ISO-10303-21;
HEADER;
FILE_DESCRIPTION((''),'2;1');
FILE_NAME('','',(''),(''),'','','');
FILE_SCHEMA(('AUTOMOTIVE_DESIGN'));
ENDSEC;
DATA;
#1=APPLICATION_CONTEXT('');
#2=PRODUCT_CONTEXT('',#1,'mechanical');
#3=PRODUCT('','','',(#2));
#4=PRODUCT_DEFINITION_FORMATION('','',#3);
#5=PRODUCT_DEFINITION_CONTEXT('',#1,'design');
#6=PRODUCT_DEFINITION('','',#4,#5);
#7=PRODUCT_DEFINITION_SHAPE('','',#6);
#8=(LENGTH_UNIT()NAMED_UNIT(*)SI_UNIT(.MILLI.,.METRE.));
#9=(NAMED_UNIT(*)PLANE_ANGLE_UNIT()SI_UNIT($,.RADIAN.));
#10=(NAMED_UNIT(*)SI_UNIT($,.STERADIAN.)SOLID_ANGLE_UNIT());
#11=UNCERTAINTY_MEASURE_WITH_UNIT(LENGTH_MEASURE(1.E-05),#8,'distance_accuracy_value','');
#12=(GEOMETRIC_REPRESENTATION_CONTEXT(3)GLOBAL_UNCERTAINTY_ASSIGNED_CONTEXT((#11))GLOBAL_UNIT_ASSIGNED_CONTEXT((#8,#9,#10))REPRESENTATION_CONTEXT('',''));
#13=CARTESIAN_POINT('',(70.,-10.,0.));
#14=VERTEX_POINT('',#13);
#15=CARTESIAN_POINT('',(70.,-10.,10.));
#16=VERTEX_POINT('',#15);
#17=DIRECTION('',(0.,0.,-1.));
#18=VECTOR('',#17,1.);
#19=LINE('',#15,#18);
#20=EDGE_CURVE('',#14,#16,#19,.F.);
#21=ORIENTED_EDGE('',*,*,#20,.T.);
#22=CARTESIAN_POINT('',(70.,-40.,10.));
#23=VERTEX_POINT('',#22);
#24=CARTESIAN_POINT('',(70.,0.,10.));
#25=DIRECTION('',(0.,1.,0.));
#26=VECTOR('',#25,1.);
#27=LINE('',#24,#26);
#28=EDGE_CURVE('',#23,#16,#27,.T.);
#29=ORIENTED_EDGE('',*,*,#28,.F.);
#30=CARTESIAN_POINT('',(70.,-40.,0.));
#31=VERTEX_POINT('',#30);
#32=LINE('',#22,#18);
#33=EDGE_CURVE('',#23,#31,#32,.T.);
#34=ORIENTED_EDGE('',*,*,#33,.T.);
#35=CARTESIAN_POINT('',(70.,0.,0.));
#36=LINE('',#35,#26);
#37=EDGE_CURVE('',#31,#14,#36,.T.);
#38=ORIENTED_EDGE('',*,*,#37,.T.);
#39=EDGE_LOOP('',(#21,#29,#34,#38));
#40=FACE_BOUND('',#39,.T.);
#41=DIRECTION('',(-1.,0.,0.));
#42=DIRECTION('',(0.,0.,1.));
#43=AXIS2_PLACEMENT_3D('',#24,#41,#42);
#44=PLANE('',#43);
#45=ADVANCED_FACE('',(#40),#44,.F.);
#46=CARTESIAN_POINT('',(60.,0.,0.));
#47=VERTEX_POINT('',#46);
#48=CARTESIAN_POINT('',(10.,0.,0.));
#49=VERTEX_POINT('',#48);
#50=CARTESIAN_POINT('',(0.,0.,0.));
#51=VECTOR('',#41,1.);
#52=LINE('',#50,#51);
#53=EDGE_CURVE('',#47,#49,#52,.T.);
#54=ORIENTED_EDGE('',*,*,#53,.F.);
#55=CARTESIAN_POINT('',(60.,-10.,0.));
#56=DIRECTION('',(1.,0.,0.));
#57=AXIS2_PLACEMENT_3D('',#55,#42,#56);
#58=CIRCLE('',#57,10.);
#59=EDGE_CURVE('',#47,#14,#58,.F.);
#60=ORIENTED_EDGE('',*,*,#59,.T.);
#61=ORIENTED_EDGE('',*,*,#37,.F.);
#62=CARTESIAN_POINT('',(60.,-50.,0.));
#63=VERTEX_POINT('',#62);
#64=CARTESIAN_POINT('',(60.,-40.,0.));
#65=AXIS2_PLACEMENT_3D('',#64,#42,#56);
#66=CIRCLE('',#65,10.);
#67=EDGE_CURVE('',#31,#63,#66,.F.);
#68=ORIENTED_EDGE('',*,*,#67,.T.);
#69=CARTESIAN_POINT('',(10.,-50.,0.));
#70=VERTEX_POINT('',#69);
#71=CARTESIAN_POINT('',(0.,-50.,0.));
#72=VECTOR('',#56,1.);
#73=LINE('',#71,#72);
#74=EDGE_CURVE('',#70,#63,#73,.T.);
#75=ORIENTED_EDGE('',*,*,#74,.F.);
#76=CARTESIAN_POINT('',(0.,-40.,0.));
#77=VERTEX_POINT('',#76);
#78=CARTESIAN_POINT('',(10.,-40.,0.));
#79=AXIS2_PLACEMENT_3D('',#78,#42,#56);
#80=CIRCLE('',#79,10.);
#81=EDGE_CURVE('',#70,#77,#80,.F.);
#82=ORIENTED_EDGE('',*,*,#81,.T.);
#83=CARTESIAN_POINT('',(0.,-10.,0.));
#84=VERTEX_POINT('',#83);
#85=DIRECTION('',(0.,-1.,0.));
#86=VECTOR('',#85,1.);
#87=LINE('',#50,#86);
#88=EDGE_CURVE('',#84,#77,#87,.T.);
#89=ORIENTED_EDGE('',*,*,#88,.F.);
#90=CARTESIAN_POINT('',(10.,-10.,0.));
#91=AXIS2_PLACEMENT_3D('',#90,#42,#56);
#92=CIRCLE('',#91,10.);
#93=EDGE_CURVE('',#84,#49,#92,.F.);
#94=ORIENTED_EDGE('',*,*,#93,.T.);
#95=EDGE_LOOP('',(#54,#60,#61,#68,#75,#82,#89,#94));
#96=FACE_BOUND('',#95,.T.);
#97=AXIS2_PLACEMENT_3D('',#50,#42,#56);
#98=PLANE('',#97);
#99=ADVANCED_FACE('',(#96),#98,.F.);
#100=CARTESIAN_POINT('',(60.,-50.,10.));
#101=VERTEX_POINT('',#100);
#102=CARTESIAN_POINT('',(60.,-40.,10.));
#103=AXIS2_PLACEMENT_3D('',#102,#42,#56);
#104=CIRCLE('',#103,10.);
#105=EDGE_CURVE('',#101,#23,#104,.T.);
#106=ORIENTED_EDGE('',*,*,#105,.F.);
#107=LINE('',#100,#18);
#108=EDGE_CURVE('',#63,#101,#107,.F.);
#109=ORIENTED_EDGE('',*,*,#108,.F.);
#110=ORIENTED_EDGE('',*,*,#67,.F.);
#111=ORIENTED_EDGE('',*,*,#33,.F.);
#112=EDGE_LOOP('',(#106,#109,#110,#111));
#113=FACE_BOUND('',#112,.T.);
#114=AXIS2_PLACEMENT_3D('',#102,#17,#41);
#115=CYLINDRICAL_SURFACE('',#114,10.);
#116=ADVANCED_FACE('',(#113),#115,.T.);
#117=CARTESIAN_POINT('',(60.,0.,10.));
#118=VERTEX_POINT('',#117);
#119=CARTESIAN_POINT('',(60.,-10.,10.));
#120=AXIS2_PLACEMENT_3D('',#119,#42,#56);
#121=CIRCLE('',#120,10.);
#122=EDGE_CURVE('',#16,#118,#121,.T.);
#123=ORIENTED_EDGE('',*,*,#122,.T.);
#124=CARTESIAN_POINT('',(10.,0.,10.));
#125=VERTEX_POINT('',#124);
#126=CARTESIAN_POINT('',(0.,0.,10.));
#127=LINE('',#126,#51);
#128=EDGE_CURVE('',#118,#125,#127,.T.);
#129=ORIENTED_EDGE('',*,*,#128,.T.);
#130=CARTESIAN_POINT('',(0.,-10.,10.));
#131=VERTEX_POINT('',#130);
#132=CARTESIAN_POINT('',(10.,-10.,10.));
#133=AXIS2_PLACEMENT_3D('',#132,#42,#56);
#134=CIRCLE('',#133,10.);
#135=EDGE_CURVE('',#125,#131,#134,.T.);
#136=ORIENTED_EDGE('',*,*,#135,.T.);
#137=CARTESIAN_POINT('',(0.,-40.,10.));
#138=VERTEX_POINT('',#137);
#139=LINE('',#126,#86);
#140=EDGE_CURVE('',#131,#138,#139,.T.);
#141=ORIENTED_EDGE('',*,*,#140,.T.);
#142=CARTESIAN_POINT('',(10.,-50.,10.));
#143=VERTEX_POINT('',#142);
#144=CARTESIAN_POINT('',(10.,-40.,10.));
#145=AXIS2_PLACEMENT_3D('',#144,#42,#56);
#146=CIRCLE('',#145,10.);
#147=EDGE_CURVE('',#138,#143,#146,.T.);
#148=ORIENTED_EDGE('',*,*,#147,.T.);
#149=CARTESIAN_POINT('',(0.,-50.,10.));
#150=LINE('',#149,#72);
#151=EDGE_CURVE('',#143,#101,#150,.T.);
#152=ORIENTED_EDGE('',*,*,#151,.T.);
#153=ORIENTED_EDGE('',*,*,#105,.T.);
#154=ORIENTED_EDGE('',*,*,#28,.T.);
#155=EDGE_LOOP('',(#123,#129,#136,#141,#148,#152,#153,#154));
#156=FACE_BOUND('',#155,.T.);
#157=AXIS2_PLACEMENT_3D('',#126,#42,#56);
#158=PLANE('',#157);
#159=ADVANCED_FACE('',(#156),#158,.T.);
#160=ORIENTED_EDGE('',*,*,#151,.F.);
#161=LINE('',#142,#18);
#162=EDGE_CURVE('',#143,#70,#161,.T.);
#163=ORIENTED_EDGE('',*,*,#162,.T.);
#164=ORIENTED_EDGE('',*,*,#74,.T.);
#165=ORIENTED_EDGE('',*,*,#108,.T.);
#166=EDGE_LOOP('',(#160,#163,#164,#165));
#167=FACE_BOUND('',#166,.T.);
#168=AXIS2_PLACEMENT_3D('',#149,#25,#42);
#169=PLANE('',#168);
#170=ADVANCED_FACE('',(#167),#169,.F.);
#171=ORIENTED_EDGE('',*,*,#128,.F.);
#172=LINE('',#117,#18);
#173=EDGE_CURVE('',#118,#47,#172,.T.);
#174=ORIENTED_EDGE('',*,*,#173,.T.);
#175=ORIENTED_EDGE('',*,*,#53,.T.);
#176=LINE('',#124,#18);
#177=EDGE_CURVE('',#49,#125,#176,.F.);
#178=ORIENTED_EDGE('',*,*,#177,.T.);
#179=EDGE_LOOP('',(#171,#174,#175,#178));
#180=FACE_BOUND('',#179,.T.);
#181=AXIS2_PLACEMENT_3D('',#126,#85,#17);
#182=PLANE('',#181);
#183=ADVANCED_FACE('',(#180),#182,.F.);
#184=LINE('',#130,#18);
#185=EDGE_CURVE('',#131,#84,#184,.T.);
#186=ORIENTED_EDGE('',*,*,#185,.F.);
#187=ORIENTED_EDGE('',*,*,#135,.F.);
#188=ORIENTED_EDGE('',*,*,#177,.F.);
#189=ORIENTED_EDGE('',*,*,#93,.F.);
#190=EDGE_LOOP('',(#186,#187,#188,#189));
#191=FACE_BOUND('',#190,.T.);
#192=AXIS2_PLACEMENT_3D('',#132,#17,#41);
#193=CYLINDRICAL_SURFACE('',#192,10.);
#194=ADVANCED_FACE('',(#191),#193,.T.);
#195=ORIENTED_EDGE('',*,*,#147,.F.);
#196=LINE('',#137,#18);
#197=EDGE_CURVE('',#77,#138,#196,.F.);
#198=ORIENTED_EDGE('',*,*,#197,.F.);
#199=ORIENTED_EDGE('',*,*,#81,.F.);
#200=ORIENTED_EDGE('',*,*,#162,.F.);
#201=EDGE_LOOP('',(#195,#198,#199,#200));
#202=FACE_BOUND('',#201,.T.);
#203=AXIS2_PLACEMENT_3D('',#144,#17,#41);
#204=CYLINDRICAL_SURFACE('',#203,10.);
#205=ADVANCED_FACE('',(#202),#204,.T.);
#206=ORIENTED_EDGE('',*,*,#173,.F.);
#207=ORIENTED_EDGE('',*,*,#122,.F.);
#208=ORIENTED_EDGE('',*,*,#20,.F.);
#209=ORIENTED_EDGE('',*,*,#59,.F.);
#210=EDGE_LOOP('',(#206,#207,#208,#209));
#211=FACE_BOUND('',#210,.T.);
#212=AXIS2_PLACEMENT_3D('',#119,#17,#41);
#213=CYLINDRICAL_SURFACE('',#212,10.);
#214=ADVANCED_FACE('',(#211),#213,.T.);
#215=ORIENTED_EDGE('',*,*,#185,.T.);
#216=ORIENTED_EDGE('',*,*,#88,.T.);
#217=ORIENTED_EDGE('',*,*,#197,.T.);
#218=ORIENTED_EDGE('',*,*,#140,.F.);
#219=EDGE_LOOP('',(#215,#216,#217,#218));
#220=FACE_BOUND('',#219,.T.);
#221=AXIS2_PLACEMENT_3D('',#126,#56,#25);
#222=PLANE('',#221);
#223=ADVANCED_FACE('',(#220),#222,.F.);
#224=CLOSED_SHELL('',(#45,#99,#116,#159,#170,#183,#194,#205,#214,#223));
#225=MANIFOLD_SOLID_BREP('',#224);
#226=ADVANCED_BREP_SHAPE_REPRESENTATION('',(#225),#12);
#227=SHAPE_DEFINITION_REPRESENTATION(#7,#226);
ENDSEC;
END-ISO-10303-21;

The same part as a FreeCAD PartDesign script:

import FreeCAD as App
import Part
import Sketcher


def edges_at(feature, points):
    """Names of the edges that pass closest to the given points."""
    edges = feature.Shape.Edges
    near = lambda p: min(range(len(edges)), key=lambda i: edges[i].distToShape(Part.Vertex(*p))[0])
    return sorted({f"Edge{near(p) + 1}" for p in points})


def add_polygon(sketch, points):
    """Adds a closed chain of lines whose ends are joined by coincident constraints."""
    first, n = sketch.GeometryCount, len(points)
    for a, b in zip(points, points[1:] + points[:1]):
        sketch.addGeometry(Part.LineSegment(App.Vector(*a, 0), App.Vector(*b, 0)), False)
    for i in range(n):
        sketch.addConstraint(Sketcher.Constraint("Coincident", first + i, 2, first + (i + 1) % n, 1))

doc = App.newDocument("Part")
body = doc.addObject("PartDesign::Body", "Body")

sketch1 = doc.addObject("Sketcher::SketchObject", "Sketch")
body.addObject(sketch1)
sketch1.AttachmentSupport = (doc.XY_Plane, [""])
sketch1.MapMode = "FlatFace"
add_polygon(sketch1, [(0, 0), (0, -50), (70, -50), (70, 0)])
sketch1.addConstraint([
    Sketcher.Constraint("Vertical", 0),
    Sketcher.Constraint("Horizontal", 1),
    Sketcher.Constraint("Vertical", 2),
    Sketcher.Constraint("Horizontal", 3),
    Sketcher.Constraint("Coincident", 3, 2, -1, 1),
    Sketcher.Constraint("DistanceX", 1, 1, 1, 2, 70.0),
    Sketcher.Constraint("DistanceY", 0, 2, 0, 1, 50.0),
])
pad1 = doc.addObject("PartDesign::Pad", "Pad")
body.addObject(pad1)
pad1.Profile = sketch1
pad1.Length = 10
doc.recompute()

fillet = doc.addObject("PartDesign::Fillet", "Fillet")
body.addObject(fillet)
fillet.Base = (pad1, edges_at(pad1, [
    (0, 0, 5),
    (70, 0, 5),
    (70, -50, 5),
    (0, -50, 5),
]))
fillet.Radius = 10

doc.recompute()
